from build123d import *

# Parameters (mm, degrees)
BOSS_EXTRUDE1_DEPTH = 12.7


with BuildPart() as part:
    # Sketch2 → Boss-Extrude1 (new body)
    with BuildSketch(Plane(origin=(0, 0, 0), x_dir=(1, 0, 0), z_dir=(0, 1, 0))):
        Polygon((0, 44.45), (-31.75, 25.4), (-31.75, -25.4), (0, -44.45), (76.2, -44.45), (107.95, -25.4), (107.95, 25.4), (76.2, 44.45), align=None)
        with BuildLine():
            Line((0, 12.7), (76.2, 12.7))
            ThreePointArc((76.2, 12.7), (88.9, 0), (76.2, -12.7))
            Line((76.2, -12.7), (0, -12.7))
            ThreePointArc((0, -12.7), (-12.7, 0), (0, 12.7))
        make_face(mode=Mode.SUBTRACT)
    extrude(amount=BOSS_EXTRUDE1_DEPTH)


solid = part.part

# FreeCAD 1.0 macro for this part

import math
import FreeCAD as App
import Part
import Sketcher

V = App.Vector
Q = App.Units.Quantity

doc = App.newDocument("Part")
params = doc.addObject("Spreadsheet::Sheet", "Params")
for row, (alias, value) in enumerate([
    ("sketch1_radius", "0.5 in"),
    ("sketch1_width", "3 in"),
    ("sketch1_height", "2 in"),
    ("pad1_length", "0.5 in"),
], start=1):
    params.set(f"A{row}", alias)
    params.set(f"B{row}", "=" + value)
    params.setAlias(f"B{row}", alias)

body = doc.addObject("PartDesign::Body", "Body")

sketch1 = body.newObject("Sketcher::SketchObject", "Sketch")
sketch1.AttachmentSupport = (doc.getObject("XZ_Plane"), [""])
sketch1.MapMode = "FlatFace"
sketch1.addGeometry(Part.LineSegment(V(0, -44, 0), V(-32, -25, 0)), False)
sketch1.addGeometry(Part.LineSegment(V(-32, -25, 0), V(-32, 25, 0)), False)
sketch1.addGeometry(Part.LineSegment(V(-32, 25, 0), V(0, 44, 0)), False)
sketch1.addGeometry(Part.LineSegment(V(0, 44, 0), V(76, 44, 0)), False)
sketch1.addGeometry(Part.LineSegment(V(76, 44, 0), V(108, 25, 0)), False)
sketch1.addGeometry(Part.LineSegment(V(108, 25, 0), V(108, -25, 0)), False)
sketch1.addGeometry(Part.LineSegment(V(108, -25, 0), V(76, -44, 0)), False)
sketch1.addGeometry(Part.LineSegment(V(76, -44, 0), V(0, -44, 0)), False)
sketch1.addGeometry(Part.ArcOfCircle(Part.Circle(V(0, 0, 0), V(0, 0, 1), 13), math.radians(90), math.radians(270)), False)
sketch1.addGeometry(Part.LineSegment(V(0, -13, 0), V(76, -13, 0)), False)
sketch1.addGeometry(Part.ArcOfCircle(Part.Circle(V(76, 0, 0), V(0, 0, 1), 13), math.radians(-90), math.radians(90)), False)
sketch1.addGeometry(Part.LineSegment(V(76, 13, 0), V(0, 13, 0)), False)
sketch1.addConstraint(Sketcher.Constraint("Coincident", 0, 2, 1, 1))
sketch1.addConstraint(Sketcher.Constraint("Coincident", 1, 2, 2, 1))
sketch1.addConstraint(Sketcher.Constraint("Coincident", 2, 2, 3, 1))
sketch1.addConstraint(Sketcher.Constraint("Coincident", 3, 2, 4, 1))
sketch1.addConstraint(Sketcher.Constraint("Coincident", 4, 2, 5, 1))
sketch1.addConstraint(Sketcher.Constraint("Coincident", 5, 2, 6, 1))
sketch1.addConstraint(Sketcher.Constraint("Coincident", 6, 2, 7, 1))
sketch1.addConstraint(Sketcher.Constraint("Coincident", 7, 2, 0, 1))
sketch1.addConstraint(Sketcher.Constraint("Tangent", 8, 2, 9, 1))
sketch1.addConstraint(Sketcher.Constraint("Tangent", 9, 2, 10, 1))
sketch1.addConstraint(Sketcher.Constraint("Tangent", 10, 2, 11, 1))
sketch1.addConstraint(Sketcher.Constraint("Tangent", 11, 2, 8, 1))
sketch1.addConstraint(Sketcher.Constraint("Vertical", 1))
sketch1.addConstraint(Sketcher.Constraint("Horizontal", 3))
sketch1.addConstraint(Sketcher.Constraint("Vertical", 5))
sketch1.addConstraint(Sketcher.Constraint("Horizontal", 7))
sketch1.addConstraint(Sketcher.Constraint("Horizontal", 9))
sketch1.addConstraint(Sketcher.Constraint("Horizontal", 11))
sketch1.addConstraint(Sketcher.Constraint("Coincident", 8, 3, -1, 1))
sketch1.addConstraint(Sketcher.Constraint("Symmetric", 2, 2, 7, 2, -1, 1))
sketch1.addConstraint(Sketcher.Constraint("PointOnObject", 2, 2, -2))
sketch1.addConstraint(Sketcher.Constraint("Parallel", 0, 4))
sketch1.addConstraint(Sketcher.Constraint("Parallel", 2, 6))
sketch1.addConstraint(Sketcher.Constraint("Horizontal", 1, 2, 4, 2))
sketch1.addConstraint(Sketcher.Constraint("Horizontal", 0, 2, 5, 2))
sketch1.addConstraint(Sketcher.Constraint("Vertical", 10, 3, 3, 2))
sketch1.addConstraint(Sketcher.Constraint("Vertical", 3, 2, 6, 2))
sketch1.addConstraint(Sketcher.Constraint("Radius", 8, Q("0.5 in")))
sketch1.addConstraint(Sketcher.Constraint("DistanceX", 3, 1, 3, 2, Q("3 in")))
sketch1.addConstraint(Sketcher.Constraint("DistanceY", 1, 1, 1, 2, Q("2 in")))
sketch1.addConstraint(Sketcher.Constraint("DistanceX", 1, 2, 4, 2, Q("5.5 in")))
sketch1.addConstraint(Sketcher.Constraint("DistanceY", 6, 2, 3, 2, Q("3.5 in")))
sketch1.setExpression("Constraints[27]", "Params.sketch1_radius")
sketch1.setExpression("Constraints[28]", "Params.sketch1_width")
sketch1.setExpression("Constraints[29]", "Params.sketch1_height")
pad1 = body.newObject("PartDesign::Pad", "Pad")
pad1.Profile = sketch1
pad1.setExpression("Length", "Params.pad1_length")
pad1.Reversed = True

doc.recompute()
